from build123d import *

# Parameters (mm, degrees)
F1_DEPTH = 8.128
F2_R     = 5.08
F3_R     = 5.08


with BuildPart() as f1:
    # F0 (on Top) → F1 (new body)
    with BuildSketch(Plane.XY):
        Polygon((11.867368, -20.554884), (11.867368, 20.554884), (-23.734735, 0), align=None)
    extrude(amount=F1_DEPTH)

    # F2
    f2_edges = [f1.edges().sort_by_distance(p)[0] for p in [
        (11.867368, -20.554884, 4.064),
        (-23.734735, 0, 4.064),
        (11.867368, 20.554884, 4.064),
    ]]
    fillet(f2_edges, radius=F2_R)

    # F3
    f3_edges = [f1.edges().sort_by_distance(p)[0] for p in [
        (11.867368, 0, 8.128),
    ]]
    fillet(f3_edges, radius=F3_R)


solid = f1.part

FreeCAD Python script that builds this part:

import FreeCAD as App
import Part
import Sketcher
Q = App.Units.Quantity


def edges_at(feature, points):
    """Names of the edges that pass closest to the given points."""
    edges = feature.Shape.Edges
    near = lambda p: min(range(len(edges)), key=lambda i: edges[i].distToShape(Part.Vertex(*p))[0])
    return sorted({f"Edge{near(p) + 1}" for p in points})


def add_polygon(sketch, points):
    """Adds a closed chain of lines whose ends are joined by coincident constraints."""
    first, n = sketch.GeometryCount, len(points)
    for a, b in zip(points, points[1:] + points[:1]):
        sketch.addGeometry(Part.LineSegment(App.Vector(*a, 0), App.Vector(*b, 0)), False)
    for i in range(n):
        sketch.addConstraint(Sketcher.Constraint("Coincident", first + i, 2, first + (i + 1) % n, 1))

doc = App.newDocument("Part")
body = doc.addObject("PartDesign::Body", "Body")

sketch1 = doc.addObject("Sketcher::SketchObject", "Sketch")
body.addObject(sketch1)
sketch1.AttachmentSupport = (doc.XY_Plane, [""])
sketch1.MapMode = "FlatFace"
add_polygon(sketch1, [(12, -21), (12, 21), (-24, 0)])
sketch1.addConstraint(Sketcher.Constraint("Vertical", 0))
sketch1.addConstraint(Sketcher.Constraint("PointOnObject", 1, 2, -1))
sketch1.addConstraint(Sketcher.Constraint("Equal", 1, 2))
sketch1.addConstraint(Sketcher.Constraint("Angle", 1, Q("-150 deg")))
sketch1.addConstraint(Sketcher.Constraint("DistanceY", 0, 1, 0, 2, 41.109768))
sketch1.addConstraint(Sketcher.Constraint("DistanceX", -1, 1, 0, 2, 11.867368))
pad1 = doc.addObject("PartDesign::Pad", "Pad")
body.addObject(pad1)
pad1.Profile = sketch1
pad1.Length = Q("0.32 in")
doc.recompute()

fillet = doc.addObject("PartDesign::Fillet", "Fillet")
body.addObject(fillet)
fillet.Base = (pad1, edges_at(pad1, [(11.867, -20.555, 4.064), (-23.735, 0, 4.064), (11.867, 20.555, 4.064)]))
fillet.Radius = Q("0.2 in")
doc.recompute()

fillet2 = doc.addObject("PartDesign::Fillet", "Fillet001")
body.addObject(fillet2)
fillet2.Base = (fillet, edges_at(fillet, [(11.867, 0, 8.128)]))
fillet2.Radius = Q("0.2 in")

doc.recompute()
